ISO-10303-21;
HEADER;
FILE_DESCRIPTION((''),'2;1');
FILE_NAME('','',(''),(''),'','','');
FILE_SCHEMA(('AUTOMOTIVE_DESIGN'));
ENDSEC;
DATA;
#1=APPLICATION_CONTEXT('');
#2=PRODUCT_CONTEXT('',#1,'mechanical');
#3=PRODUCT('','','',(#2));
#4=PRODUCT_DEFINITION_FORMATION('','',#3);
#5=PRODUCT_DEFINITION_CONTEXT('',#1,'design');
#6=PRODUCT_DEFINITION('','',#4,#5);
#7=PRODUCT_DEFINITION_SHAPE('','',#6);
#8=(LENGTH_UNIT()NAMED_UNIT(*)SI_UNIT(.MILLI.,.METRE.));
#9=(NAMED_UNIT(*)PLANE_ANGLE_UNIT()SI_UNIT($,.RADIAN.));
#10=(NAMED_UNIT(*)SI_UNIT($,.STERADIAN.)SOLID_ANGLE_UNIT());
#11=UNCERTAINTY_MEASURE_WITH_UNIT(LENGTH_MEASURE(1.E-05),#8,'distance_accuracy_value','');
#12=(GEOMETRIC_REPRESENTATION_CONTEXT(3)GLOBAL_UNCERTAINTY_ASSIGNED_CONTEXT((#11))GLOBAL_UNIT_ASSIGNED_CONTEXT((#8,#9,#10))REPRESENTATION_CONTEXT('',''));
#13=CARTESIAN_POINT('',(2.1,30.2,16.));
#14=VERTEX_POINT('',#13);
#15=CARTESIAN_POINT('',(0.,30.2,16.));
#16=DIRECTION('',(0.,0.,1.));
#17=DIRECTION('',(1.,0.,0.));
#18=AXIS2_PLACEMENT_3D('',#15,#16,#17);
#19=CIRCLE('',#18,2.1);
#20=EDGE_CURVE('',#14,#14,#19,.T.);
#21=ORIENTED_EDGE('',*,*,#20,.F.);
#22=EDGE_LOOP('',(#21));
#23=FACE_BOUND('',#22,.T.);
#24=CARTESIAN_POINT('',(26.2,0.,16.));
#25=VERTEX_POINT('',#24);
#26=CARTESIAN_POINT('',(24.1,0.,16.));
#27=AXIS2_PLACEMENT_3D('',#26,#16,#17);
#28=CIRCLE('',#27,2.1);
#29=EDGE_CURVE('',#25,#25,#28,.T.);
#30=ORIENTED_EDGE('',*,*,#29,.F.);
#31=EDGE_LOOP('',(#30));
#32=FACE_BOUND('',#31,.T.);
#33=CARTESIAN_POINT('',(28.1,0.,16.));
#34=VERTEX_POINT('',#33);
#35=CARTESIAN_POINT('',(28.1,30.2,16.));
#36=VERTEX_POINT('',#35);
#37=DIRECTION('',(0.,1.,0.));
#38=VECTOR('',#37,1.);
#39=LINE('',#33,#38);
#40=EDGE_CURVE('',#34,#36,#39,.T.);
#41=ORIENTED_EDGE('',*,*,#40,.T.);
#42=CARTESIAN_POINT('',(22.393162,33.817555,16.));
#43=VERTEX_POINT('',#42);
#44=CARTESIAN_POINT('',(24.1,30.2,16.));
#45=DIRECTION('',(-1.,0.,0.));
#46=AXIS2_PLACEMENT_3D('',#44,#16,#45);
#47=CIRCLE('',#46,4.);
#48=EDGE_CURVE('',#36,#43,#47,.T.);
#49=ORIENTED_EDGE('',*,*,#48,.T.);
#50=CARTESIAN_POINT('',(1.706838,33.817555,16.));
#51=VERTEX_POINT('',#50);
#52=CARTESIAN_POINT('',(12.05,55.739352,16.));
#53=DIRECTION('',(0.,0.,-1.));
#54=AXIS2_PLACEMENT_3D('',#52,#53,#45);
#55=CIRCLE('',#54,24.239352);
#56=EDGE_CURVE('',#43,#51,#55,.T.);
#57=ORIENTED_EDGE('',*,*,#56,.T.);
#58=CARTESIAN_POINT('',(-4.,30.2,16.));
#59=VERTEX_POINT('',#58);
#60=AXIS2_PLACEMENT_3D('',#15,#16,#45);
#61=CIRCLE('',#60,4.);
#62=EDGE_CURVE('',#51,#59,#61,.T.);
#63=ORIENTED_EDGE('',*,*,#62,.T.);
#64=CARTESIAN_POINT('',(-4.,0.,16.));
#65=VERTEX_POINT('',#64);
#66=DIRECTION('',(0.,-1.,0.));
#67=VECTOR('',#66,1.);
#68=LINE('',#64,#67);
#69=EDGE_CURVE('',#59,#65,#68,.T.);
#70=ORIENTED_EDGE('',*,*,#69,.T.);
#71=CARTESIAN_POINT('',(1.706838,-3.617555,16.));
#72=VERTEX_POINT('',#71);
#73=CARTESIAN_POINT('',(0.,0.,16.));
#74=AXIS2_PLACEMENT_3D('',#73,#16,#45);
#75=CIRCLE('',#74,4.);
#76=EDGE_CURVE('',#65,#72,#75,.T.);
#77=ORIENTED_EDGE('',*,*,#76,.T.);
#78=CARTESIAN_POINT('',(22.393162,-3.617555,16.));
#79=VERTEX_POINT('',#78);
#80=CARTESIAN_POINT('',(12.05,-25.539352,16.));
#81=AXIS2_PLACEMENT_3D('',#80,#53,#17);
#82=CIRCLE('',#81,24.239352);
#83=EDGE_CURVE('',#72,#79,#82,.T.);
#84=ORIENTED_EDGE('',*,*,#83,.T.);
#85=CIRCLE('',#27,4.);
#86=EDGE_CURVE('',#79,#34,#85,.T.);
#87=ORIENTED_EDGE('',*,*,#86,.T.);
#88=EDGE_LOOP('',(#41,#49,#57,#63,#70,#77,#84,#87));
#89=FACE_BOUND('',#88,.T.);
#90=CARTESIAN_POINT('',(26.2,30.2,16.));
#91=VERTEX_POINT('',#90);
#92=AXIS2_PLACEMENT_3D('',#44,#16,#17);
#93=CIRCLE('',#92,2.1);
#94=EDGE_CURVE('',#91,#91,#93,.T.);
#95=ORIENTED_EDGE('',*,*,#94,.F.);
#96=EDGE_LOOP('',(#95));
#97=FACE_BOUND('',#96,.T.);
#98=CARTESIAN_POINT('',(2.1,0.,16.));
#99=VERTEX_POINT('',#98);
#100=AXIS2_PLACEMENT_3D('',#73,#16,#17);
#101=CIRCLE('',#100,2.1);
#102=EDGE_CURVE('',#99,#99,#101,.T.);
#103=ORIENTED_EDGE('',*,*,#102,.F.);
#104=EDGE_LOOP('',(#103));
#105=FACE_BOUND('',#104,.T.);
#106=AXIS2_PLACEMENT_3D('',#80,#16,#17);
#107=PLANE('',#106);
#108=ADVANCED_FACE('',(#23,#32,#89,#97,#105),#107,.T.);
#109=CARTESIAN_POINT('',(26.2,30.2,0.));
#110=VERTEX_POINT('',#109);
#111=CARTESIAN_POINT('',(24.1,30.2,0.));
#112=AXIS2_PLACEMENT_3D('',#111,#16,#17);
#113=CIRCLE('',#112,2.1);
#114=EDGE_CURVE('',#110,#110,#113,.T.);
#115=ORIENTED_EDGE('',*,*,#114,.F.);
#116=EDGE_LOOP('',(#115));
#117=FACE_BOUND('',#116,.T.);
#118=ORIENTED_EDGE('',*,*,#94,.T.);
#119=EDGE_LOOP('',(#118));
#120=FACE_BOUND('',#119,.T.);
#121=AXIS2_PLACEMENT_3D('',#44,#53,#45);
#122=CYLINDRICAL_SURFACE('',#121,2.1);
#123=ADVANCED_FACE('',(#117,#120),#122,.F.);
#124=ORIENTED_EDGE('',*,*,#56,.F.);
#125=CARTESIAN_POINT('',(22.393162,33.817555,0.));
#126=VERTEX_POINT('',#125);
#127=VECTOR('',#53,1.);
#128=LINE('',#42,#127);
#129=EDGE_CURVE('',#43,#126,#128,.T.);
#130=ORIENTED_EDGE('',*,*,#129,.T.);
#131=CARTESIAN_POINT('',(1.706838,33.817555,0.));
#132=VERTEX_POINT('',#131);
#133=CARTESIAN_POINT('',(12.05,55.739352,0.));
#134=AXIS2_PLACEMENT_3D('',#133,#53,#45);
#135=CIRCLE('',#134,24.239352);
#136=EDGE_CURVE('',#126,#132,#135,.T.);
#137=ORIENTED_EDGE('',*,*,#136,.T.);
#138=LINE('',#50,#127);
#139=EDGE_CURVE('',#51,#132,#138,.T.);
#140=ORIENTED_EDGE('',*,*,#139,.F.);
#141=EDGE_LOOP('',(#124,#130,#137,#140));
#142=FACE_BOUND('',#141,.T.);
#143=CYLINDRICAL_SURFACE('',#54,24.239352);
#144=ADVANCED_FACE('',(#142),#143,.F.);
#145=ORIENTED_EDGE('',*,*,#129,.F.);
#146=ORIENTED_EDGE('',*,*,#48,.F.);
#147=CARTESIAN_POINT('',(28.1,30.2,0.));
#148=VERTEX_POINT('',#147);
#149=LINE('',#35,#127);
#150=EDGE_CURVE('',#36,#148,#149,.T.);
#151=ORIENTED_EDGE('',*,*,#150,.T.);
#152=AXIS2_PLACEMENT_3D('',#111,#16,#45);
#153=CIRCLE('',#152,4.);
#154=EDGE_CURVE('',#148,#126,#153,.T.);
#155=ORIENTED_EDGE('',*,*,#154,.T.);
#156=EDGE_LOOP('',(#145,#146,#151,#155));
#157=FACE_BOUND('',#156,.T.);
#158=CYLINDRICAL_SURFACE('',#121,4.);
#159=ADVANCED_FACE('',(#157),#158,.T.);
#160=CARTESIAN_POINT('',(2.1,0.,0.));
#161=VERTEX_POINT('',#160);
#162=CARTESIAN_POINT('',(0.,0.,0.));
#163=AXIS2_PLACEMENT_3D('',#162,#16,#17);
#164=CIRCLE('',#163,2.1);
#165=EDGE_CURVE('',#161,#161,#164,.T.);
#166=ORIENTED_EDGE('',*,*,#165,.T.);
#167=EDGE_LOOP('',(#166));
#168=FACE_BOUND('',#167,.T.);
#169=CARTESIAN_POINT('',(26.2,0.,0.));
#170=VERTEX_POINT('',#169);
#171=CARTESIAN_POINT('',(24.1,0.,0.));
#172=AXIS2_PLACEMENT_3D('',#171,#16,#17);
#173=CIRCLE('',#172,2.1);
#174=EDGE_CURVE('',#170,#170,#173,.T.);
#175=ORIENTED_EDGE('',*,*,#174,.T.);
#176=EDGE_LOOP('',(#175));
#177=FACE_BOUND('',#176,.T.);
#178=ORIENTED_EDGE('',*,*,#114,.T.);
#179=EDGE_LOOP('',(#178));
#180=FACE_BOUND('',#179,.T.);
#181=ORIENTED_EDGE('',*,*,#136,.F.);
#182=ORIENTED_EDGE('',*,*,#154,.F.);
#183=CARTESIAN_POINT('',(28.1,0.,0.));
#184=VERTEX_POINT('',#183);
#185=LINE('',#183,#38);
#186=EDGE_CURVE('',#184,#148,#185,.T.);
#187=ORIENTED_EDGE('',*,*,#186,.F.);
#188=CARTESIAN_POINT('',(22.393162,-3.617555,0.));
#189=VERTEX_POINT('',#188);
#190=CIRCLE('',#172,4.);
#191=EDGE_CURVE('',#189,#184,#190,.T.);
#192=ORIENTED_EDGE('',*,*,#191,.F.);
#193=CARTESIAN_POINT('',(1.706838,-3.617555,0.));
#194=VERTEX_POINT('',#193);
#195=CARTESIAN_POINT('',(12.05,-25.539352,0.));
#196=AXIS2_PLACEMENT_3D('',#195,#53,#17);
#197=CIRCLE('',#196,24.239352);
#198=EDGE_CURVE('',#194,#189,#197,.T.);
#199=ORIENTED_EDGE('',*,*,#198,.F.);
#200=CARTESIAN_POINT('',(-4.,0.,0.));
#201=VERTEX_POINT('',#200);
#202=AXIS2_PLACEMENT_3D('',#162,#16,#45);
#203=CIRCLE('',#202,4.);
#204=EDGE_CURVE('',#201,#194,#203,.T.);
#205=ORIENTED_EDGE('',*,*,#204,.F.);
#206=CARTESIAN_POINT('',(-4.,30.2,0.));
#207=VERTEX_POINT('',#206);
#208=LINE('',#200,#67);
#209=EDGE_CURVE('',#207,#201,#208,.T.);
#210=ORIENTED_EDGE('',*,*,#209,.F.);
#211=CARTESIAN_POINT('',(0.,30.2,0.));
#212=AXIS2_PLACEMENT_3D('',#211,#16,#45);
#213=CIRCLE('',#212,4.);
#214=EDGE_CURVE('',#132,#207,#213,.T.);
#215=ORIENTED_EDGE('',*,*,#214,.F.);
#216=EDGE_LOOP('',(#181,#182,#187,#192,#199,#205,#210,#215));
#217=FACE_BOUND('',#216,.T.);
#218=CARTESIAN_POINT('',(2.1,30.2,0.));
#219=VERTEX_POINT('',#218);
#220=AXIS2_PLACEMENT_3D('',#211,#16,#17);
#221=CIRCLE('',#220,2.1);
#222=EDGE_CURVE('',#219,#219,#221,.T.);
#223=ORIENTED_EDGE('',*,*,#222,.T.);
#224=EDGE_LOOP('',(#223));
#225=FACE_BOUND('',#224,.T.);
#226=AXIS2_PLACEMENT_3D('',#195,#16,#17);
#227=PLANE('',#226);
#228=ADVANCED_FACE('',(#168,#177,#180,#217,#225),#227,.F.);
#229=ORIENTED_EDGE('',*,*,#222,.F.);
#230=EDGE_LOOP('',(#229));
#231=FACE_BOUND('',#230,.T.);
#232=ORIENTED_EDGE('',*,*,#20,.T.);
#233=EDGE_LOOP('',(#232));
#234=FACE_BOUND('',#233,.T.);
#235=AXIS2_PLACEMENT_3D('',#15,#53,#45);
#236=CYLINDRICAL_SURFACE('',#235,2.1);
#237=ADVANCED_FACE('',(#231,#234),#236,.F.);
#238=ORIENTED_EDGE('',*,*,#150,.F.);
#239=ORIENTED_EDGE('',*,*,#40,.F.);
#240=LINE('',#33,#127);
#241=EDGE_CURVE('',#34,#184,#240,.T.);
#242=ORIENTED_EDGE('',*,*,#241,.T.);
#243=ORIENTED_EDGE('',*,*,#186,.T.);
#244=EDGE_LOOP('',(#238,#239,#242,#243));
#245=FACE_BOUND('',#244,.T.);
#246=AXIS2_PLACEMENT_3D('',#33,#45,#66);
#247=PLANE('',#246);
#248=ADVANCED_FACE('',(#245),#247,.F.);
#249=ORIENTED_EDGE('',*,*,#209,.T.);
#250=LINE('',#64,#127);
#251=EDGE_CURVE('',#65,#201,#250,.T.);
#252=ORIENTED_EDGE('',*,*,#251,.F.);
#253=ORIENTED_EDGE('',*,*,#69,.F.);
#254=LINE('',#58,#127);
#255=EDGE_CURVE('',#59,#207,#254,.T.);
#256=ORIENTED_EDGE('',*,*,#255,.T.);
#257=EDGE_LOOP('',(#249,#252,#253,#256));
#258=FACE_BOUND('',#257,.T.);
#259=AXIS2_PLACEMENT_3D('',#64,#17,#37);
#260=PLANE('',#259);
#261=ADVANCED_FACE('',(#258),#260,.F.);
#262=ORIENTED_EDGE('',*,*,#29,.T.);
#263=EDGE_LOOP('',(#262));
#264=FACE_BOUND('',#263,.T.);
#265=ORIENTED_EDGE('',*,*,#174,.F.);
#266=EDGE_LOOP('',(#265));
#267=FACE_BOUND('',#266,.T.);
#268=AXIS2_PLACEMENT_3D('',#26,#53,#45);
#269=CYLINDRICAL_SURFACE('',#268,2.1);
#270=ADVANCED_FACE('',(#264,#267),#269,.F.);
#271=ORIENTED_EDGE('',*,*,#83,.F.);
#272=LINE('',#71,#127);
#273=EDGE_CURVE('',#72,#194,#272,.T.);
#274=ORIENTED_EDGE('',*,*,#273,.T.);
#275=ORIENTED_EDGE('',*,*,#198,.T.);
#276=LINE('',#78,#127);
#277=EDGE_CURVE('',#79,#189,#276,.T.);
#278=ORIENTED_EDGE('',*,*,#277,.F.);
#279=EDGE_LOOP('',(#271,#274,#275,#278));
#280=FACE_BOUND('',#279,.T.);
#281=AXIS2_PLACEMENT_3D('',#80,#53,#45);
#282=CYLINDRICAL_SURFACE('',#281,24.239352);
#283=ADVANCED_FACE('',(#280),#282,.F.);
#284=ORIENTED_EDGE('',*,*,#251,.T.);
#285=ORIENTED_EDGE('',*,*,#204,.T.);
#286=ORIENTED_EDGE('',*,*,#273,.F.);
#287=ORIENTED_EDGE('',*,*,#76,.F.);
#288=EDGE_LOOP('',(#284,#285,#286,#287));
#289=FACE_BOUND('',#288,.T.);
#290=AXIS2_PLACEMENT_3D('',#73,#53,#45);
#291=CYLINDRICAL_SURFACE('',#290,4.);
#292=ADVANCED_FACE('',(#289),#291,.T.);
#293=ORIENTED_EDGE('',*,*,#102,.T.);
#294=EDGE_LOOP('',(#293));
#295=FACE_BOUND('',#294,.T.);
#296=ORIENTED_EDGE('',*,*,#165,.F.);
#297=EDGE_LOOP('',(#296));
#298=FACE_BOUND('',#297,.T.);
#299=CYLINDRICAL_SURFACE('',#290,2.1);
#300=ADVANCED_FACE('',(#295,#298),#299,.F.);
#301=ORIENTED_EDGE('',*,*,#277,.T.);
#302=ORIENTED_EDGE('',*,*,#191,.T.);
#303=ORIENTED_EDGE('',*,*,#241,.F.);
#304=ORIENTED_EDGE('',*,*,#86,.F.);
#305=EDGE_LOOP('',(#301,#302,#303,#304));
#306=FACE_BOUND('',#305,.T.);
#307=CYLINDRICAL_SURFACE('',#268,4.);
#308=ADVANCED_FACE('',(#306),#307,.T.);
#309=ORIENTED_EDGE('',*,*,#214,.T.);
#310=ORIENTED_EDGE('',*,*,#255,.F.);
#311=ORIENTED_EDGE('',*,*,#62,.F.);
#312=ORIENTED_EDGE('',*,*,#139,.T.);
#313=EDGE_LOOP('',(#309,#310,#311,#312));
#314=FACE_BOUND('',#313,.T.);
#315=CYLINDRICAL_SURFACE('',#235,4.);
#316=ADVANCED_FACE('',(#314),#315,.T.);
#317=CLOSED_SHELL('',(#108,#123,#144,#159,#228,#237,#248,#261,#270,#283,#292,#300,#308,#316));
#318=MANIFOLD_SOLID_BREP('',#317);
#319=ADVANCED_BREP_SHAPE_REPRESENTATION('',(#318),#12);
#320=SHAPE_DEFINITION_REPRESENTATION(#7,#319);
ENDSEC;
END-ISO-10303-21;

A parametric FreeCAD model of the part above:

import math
import FreeCAD as App
import Part
import Sketcher
Q = App.Units.Quantity

doc = App.newDocument("Part")
params = doc.addObject("Spreadsheet::Sheet", "Params")
for row, (alias, value) in enumerate([
    ("sketch1_radius", "4 mm"),
    ("sketch1_diameter", "4.2 mm"),
    ("sketch1_height", "30.2 mm"),
    ("pad1_length", "16 mm"),
], start=1):
    params.set(f"A{row}", alias)
    params.set(f"B{row}", "=" + value)
    params.setAlias(f"B{row}", alias)

body = doc.addObject("PartDesign::Body", "Body")

# Sketch on XY plane
sketch1 = doc.addObject("Sketcher::SketchObject", "Sketch")
body.addObject(sketch1)
sketch1.AttachmentSupport = (doc.XY_Plane, [""])
sketch1.MapMode = "FlatFace"
sketch1.addGeometry([
    Part.LineSegment(App.Vector(-4, 30.2, 0), App.Vector(-4, 0, 0)),  # 0
    Part.ArcOfCircle(Part.Circle(App.Vector(0, 0, 0), App.Vector(0, 0, 1), 4), math.radians(180), math.radians(295)),  # 1
    Part.ArcOfCircle(Part.Circle(App.Vector(12.1, -25.5, 0), App.Vector(0, 0, 1), 24.2), math.radians(65), math.radians(115)),  # 2
    Part.ArcOfCircle(Part.Circle(App.Vector(24.1, 0, 0), App.Vector(0, 0, 1), 4), math.radians(-115), math.radians(0)),  # 3
    Part.LineSegment(App.Vector(28.1, 0, 0), App.Vector(28.1, 30.2, 0)),  # 4
    Part.ArcOfCircle(Part.Circle(App.Vector(24.1, 30.2, 0), App.Vector(0, 0, 1), 4), math.radians(0), math.radians(115)),  # 5
    Part.ArcOfCircle(Part.Circle(App.Vector(12.1, 55.7, 0), App.Vector(0, 0, 1), 24.2), math.radians(-115), math.radians(-65)),  # 6
    Part.ArcOfCircle(Part.Circle(App.Vector(0, 30.2, 0), App.Vector(0, 0, 1), 4), math.radians(65), math.radians(180)),  # 7
    Part.Circle(App.Vector(24.1, 0, 0), App.Vector(0, 0, 1), 2.1),  # 8
    Part.Circle(App.Vector(0, 0, 0), App.Vector(0, 0, 1), 2.1),  # 9
    Part.Circle(App.Vector(24.1, 30.2, 0), App.Vector(0, 0, 1), 2.1),  # 10
    Part.Circle(App.Vector(0, 30.2, 0), App.Vector(0, 0, 1), 2.1),  # 11
], False)
sketch1.addConstraint([
    Sketcher.Constraint("Tangent", 0, 2, 1, 1),
    Sketcher.Constraint("Tangent", 1, 2, 2, 2),
    Sketcher.Constraint("Tangent", 2, 1, 3, 1),
    Sketcher.Constraint("Tangent", 3, 2, 4, 1),
    Sketcher.Constraint("Tangent", 4, 2, 5, 1),
    Sketcher.Constraint("Tangent", 5, 2, 6, 2),
    Sketcher.Constraint("Tangent", 6, 1, 7, 1),
    Sketcher.Constraint("Tangent", 7, 2, 0, 1),
    Sketcher.Constraint("Vertical", 0),
    Sketcher.Constraint("Vertical", 4),
    Sketcher.Constraint("Coincident", 1, 3, -1, 1),
    Sketcher.Constraint("Coincident", 9, 3, -1, 1),
    Sketcher.Constraint("Coincident", 8, 3, 3, 3),
    Sketcher.Constraint("Coincident", 10, 3, 5, 3),
    Sketcher.Constraint("Coincident", 11, 3, 7, 3),
    Sketcher.Constraint("Equal", 1, 3),
    Sketcher.Constraint("Equal", 3, 5),
    Sketcher.Constraint("Equal", 2, 6),
    Sketcher.Constraint("Equal", 5, 7),
    Sketcher.Constraint("Equal", 8, 9),
    Sketcher.Constraint("Equal", 9, 10),
    Sketcher.Constraint("Equal", 10, 11),
    Sketcher.Constraint("PointOnObject", 3, 3, -1),
    Sketcher.Constraint("Horizontal", 5, 3, 7, 3),
    Sketcher.Constraint("Radius", 1, Q("4 mm")),
    Sketcher.Constraint("Diameter", 8, Q("4.2 mm")),
    Sketcher.Constraint("DistanceY", 0, 2, 0, 1, Q("30.2 mm")),
    Sketcher.Constraint("DistanceX", -1, 1, 3, 3, Q("24.1 mm")),
    Sketcher.Constraint("Radius", 2, Q("24.239352 mm")),
])
sketch1.setExpression("Constraints[24]", "Params.sketch1_radius")
sketch1.setExpression("Constraints[25]", "Params.sketch1_diameter")
sketch1.setExpression("Constraints[26]", "Params.sketch1_height")
pad1 = doc.addObject("PartDesign::Pad", "Pad")
body.addObject(pad1)
pad1.Profile = sketch1
pad1.setExpression("Length", "Params.pad1_length")

doc.recompute()
